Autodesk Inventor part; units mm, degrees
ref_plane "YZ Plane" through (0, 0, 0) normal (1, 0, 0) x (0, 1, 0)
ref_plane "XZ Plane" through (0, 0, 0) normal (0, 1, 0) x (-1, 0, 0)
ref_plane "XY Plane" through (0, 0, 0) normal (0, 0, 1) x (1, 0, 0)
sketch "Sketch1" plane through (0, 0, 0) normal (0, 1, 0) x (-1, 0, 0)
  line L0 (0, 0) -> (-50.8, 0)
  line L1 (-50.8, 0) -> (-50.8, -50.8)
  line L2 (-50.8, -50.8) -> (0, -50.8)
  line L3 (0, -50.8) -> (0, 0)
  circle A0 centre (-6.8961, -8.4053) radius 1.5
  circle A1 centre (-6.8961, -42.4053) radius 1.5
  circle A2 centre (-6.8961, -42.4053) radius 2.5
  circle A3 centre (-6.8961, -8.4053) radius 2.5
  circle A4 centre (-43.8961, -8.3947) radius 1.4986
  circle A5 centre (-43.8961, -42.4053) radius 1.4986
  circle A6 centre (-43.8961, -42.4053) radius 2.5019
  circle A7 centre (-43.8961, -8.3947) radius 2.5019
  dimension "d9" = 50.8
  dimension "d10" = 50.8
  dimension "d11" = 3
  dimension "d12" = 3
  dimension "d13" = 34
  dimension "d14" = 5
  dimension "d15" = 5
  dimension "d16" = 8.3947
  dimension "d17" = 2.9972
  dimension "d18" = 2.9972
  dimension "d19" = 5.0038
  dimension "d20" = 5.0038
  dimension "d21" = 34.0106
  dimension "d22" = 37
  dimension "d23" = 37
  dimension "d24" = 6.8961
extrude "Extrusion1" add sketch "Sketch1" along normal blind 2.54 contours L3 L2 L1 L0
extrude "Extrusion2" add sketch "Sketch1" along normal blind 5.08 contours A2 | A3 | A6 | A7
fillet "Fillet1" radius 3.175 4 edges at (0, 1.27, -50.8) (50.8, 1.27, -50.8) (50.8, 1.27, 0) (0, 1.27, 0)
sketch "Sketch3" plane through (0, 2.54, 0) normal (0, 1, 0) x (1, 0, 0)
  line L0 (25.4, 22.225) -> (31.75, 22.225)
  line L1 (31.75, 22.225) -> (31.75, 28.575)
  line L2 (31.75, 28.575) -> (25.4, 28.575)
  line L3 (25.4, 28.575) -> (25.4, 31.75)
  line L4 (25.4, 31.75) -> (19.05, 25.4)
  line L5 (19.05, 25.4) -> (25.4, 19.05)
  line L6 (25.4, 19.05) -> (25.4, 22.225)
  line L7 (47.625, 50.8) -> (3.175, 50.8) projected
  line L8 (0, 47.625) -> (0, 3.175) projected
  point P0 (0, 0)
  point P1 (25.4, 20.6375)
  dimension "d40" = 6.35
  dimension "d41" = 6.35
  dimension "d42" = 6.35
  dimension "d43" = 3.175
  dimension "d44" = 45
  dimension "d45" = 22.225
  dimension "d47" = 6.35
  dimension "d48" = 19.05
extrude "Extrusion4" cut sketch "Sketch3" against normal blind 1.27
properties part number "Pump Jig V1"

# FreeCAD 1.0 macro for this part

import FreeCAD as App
import Part
import Sketcher
from FreeCAD import Vector
Q = App.Units.Quantity


def edges_at(feature, points):
    """Names of the edges that pass closest to the given points."""
    edges = feature.Shape.Edges
    near = lambda p: min(range(len(edges)), key=lambda i: edges[i].distToShape(Part.Vertex(*p))[0])
    return sorted({f"Edge{near(p) + 1}" for p in points})

doc = App.newDocument("Part")
body = doc.addObject("PartDesign::Body", "Body")

sketch1 = body.newObject("Sketcher::SketchObject", "Sketch")
sketch1.AttachmentSupport = (doc.getObject("XZ_Plane"), [""])
sketch1.MapMode = "FlatFace"
sketch1.addGeometry([
    Part.LineSegment(Vector(0, -50.8, 0), Vector(0, 0, 0)),
    Part.LineSegment(Vector(0, 0, 0), Vector(50.8, 0, 0)),
    Part.LineSegment(Vector(50.8, 0, 0), Vector(50.8, -50.8, 0)),
    Part.LineSegment(Vector(50.8, -50.8, 0), Vector(0, -50.8, 0)),
    Part.Circle(Vector(43.9, -42.4, 0), Vector(0, 0, 1), 2.5),
    Part.Circle(Vector(6.9, -42.4, 0), Vector(0, 0, 1), 2.5),
    Part.Circle(Vector(43.9, -8.4, 0), Vector(0, 0, 1), 2.5),
    Part.Circle(Vector(6.9, -8.4, 0), Vector(0, 0, 1), 2.5),
], False)
sketch1.addConstraint([
    Sketcher.Constraint("Coincident", 0, 2, 1, 1),
    Sketcher.Constraint("Coincident", 1, 2, 2, 1),
    Sketcher.Constraint("Coincident", 2, 2, 3, 1),
    Sketcher.Constraint("Coincident", 3, 2, 0, 1),
    Sketcher.Constraint("Vertical", 0),
    Sketcher.Constraint("Horizontal", 1),
    Sketcher.Constraint("Vertical", 2),
    Sketcher.Constraint("Horizontal", 3),
    Sketcher.Constraint("Coincident", 0, 2, -1, 1),
    Sketcher.Constraint("Equal", 4, 6),
    Sketcher.Constraint("Equal", 5, 7),
    Sketcher.Constraint("Horizontal", 4, 3, 5, 3),
    Sketcher.Constraint("Vertical", 4, 3, 6, 3),
    Sketcher.Constraint("Vertical", 5, 3, 7, 3),
    Sketcher.Constraint("Equal", 3, 0),
    Sketcher.Constraint("DistanceX", 1, 1, 1, 2, Q("2 in")),
    Sketcher.Constraint("Diameter", 4, Q("0.197 in")),
    Sketcher.Constraint("Diameter", 5, 5.0),
    Sketcher.Constraint("DistanceY", 4, 3, 6, 3, Q("1.339 in")),
    Sketcher.Constraint("DistanceX", -1, 1, 5, 3, Q("0.2715 in")),
    Sketcher.Constraint("DistanceY", 6, 3, -1, 1, Q("0.3305 in")),
    Sketcher.Constraint("DistanceX", 5, 3, 4, 3, Q("1.4567 in")),
    Sketcher.Constraint("DistanceY", 5, 3, 7, 3, 34.0),
])
pad1 = body.newObject("PartDesign::Pad", "Pad")
pad1.Profile = sketch1
pad1.Length = Q("0.1 in")
pad1.Reversed = True

sketch2 = body.newObject("Sketcher::SketchObject", "Sketch001")
sketch2.AttachmentSupport = (doc.getObject("XZ_Plane"), [""])
sketch2.MapMode = "FlatFace"
sketch2.addGeometry([
    Part.Circle(Vector(6.9, -42.4, 0), Vector(0, 0, 1), 2.5),
    Part.Circle(Vector(6.9, -42.4, 0), Vector(0, 0, 1), 1.5),
    Part.Circle(Vector(6.9, -8.4, 0), Vector(0, 0, 1), 2.5),
    Part.Circle(Vector(6.9, -8.4, 0), Vector(0, 0, 1), 1.5),
    Part.Circle(Vector(43.9, -42.4, 0), Vector(0, 0, 1), 2.5),
    Part.Circle(Vector(43.9, -42.4, 0), Vector(0, 0, 1), 1.5),
    Part.Circle(Vector(43.9, -8.4, 0), Vector(0, 0, 1), 2.5),
    Part.Circle(Vector(43.9, -8.4, 0), Vector(0, 0, 1), 1.5),
], False)
sketch2.addConstraint([
    Sketcher.Constraint("Coincident", 1, 3, 0, 3),
    Sketcher.Constraint("Coincident", 3, 3, 2, 3),
    Sketcher.Constraint("Coincident", 5, 3, 4, 3),
    Sketcher.Constraint("Coincident", 7, 3, 6, 3),
    Sketcher.Constraint("Equal", 0, 2),
    Sketcher.Constraint("Equal", 1, 3),
    Sketcher.Constraint("Equal", 4, 6),
    Sketcher.Constraint("Equal", 5, 7),
    Sketcher.Constraint("Horizontal", 1, 3, 4, 3),
    Sketcher.Constraint("Vertical", 1, 3, 2, 3),
    Sketcher.Constraint("Vertical", 5, 3, 6, 3),
    Sketcher.Constraint("Diameter", 4, Q("0.197 in")),
    Sketcher.Constraint("Diameter", 5, Q("0.118 in")),
    Sketcher.Constraint("Diameter", 1, Q("0.1181 in")),
    Sketcher.Constraint("Diameter", 0, 5.0),
    Sketcher.Constraint("DistanceY", 4, 3, 6, 3, Q("1.339 in")),
    Sketcher.Constraint("DistanceX", -1, 1, 0, 3, Q("0.2715 in")),
    Sketcher.Constraint("DistanceY", 6, 3, -1, 1, Q("0.3305 in")),
    Sketcher.Constraint("DistanceX", 0, 3, 4, 3, Q("1.4567 in")),
    Sketcher.Constraint("DistanceY", 0, 3, 2, 3, 34.0),
])
pad2 = body.newObject("PartDesign::Pad", "Pad001")
pad2.Profile = sketch2
pad2.Length = Q("0.2 in")
pad2.Reversed = True
doc.recompute()

fillet = body.newObject("PartDesign::Fillet", "Fillet")
fillet.Base = (pad2, edges_at(pad2, [
    (0, 1.27, -50.8),
    (50.8, 1.27, -50.8),
    (50.8, 1.27, 0),
    (0, 1.27, 0),
]))
fillet.Radius = Q("0.125 in")

sketch3 = body.newObject("Sketcher::SketchObject", "Sketch002")
sketch3.AttachmentSupport = (doc.getObject("XZ_Plane"), [""])
sketch3.MapMode = "FlatFace"
sketch3.AttachmentOffset = App.Placement(Vector(0, 0, -0.1 * 25.4), App.Rotation())
sketch3.addGeometry([
    Part.LineSegment(Vector(25.4, -19.1, 0), Vector(25.4, -22.2, 0)),
    Part.LineSegment(Vector(25.4, -22.2, 0), Vector(31.8, -22.2, 0)),
    Part.LineSegment(Vector(31.8, -22.2, 0), Vector(31.8, -28.6, 0)),
    Part.LineSegment(Vector(31.8, -28.6, 0), Vector(25.4, -28.6, 0)),
    Part.LineSegment(Vector(25.4, -28.6, 0), Vector(25.4, -31.8, 0)),
    Part.LineSegment(Vector(25.4, -31.8, 0), Vector(19.1, -25.4, 0)),
    Part.LineSegment(Vector(19.1, -25.4, 0), Vector(25.4, -19.1, 0)),
], False)
sketch3.addConstraint([
    Sketcher.Constraint("Coincident", 0, 2, 1, 1),
    Sketcher.Constraint("Coincident", 1, 2, 2, 1),
    Sketcher.Constraint("Coincident", 2, 2, 3, 1),
    Sketcher.Constraint("Coincident", 3, 2, 4, 1),
    Sketcher.Constraint("Coincident", 4, 2, 5, 1),
    Sketcher.Constraint("Coincident", 5, 2, 6, 1),
    Sketcher.Constraint("Coincident", 6, 2, 0, 1),
    Sketcher.Constraint("Vertical", 0),
    Sketcher.Constraint("Horizontal", 1),
    Sketcher.Constraint("Vertical", 2),
    Sketcher.Constraint("Horizontal", 3),
    Sketcher.Constraint("Vertical", 4),
    Sketcher.Constraint("Perpendicular", 5, 6),
    Sketcher.Constraint("Vertical", 0, 2, 3, 2),
    Sketcher.Constraint("Equal", 3, 2),
    Sketcher.Constraint("Equal", 0, 4),
    Sketcher.Constraint("Equal", 5, 6),
    Sketcher.Constraint("DistanceX", 1, 1, 1, 2, Q("0.25 in")),
    Sketcher.Constraint("DistanceY", 0, 2, 0, 1, Q("0.125 in")),
    Sketcher.Constraint("DistanceX", -1, 1, 5, 2, Q("0.75 in")),
    Sketcher.Constraint("DistanceY", 6, 2, -1, 1, Q("0.75 in")),
])
pocket1 = body.newObject("PartDesign::Pocket", "Pocket")
pocket1.Profile = sketch3
pocket1.Length = Q("0.05 in")
pocket1.Reversed = True

doc.recompute()
